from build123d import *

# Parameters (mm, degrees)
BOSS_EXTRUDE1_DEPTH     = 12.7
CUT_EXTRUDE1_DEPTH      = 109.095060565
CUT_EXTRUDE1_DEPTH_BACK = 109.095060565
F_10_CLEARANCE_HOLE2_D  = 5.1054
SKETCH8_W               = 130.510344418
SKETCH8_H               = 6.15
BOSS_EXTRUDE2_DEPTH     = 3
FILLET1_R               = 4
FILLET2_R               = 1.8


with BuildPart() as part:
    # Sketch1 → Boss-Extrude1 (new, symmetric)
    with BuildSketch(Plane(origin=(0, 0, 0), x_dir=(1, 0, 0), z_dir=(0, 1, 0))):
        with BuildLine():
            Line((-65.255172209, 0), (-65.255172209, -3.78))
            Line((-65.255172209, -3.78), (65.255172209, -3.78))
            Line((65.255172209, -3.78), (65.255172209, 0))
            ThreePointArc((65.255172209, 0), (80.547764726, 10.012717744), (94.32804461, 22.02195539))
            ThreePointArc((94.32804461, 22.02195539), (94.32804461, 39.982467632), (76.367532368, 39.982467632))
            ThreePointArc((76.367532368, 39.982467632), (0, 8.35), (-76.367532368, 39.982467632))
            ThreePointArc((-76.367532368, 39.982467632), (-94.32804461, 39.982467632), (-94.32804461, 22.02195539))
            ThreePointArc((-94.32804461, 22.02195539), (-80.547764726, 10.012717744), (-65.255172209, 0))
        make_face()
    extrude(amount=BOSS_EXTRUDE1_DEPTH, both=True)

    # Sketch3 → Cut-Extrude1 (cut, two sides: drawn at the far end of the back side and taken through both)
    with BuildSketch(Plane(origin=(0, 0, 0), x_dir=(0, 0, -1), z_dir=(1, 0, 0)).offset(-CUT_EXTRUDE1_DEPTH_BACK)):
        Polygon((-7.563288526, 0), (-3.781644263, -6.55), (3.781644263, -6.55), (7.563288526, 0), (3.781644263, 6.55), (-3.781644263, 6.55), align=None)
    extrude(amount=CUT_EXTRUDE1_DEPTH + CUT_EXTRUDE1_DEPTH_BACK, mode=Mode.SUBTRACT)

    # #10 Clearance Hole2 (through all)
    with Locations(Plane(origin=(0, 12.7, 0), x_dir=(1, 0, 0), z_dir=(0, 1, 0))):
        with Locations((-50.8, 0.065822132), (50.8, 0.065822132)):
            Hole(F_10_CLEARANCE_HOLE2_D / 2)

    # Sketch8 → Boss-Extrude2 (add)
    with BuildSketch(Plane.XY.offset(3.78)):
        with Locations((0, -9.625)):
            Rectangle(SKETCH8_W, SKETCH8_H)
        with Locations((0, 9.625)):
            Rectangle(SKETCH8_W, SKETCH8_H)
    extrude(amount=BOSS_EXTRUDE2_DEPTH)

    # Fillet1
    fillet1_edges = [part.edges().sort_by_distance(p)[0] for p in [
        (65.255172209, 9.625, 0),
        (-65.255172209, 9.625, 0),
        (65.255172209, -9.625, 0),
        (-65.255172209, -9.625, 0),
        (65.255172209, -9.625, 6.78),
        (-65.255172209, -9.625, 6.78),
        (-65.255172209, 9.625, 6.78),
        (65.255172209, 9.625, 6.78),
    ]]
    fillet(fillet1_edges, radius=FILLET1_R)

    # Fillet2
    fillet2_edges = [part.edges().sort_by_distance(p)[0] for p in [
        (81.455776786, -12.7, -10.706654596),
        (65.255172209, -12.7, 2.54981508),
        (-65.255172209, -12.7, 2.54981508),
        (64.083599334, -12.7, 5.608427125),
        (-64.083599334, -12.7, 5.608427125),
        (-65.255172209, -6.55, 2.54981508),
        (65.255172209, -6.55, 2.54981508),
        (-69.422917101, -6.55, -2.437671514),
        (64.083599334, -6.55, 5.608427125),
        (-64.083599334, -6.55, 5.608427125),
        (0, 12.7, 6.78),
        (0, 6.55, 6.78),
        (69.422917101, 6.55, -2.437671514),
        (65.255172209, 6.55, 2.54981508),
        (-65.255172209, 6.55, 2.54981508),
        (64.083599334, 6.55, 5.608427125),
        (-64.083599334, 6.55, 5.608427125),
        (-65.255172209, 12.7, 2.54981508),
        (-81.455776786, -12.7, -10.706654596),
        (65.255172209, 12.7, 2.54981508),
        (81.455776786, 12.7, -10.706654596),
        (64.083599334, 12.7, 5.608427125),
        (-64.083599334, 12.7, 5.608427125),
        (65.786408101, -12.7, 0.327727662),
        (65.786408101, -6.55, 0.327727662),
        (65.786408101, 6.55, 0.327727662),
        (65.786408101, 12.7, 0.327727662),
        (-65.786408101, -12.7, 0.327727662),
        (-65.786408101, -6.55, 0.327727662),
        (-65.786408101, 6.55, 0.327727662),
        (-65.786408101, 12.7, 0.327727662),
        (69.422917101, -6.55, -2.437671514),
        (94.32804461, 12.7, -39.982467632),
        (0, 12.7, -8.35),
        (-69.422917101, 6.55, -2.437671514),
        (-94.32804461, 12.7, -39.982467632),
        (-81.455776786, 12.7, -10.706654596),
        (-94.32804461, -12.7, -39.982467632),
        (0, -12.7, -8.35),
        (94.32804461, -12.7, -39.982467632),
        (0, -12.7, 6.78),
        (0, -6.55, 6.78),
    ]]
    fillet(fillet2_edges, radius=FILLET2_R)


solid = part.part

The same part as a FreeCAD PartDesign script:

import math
import FreeCAD as App
import Part
import Sketcher
Q = App.Units.Quantity


def edges_at(feature, points):
    """Names of the edges that pass closest to the given points."""
    edges = feature.Shape.Edges
    near = lambda p: min(range(len(edges)), key=lambda i: edges[i].distToShape(Part.Vertex(*p))[0])
    return sorted({f"Edge{near(p) + 1}" for p in points})

doc = App.newDocument("Part")
body = doc.addObject("PartDesign::Body", "Body")

# Sketch on XZ plane
sketch1 = body.newObject("Sketcher::SketchObject", "Sketch")
sketch1.AttachmentSupport = (doc.getObject("XZ_Plane"), [""])
sketch1.MapMode = "FlatFace"
sketch1.addGeometry([
    Part.LineSegment(App.Vector(-65.3, 0, 0), App.Vector(-65.3, 3.8, 0)),  # 0
    Part.LineSegment(App.Vector(-65.3, 3.8, 0), App.Vector(65.3, 3.8, 0)),  # 1
    Part.LineSegment(App.Vector(65.3, 3.8, 0), App.Vector(65.3, 0, 0)),  # 2
    Part.ArcOfCircle(Part.Circle(App.Vector(0, -116.4, 0), App.Vector(0, 0, 1), 133.4), math.radians(45), math.radians(60.71)),  # 3
    Part.ArcOfCircle(Part.Circle(App.Vector(85.3, -31, 0), App.Vector(0, 0, 1), 12.7), math.radians(-135), math.radians(45)),  # 4
    Part.ArcOfCircle(Part.Circle(App.Vector(0, -116.3, 0), App.Vector(0, 0, 1), 108), math.radians(45), math.radians(135)),  # 5
    Part.ArcOfCircle(Part.Circle(App.Vector(-85.3, -31, 0), App.Vector(0, 0, 1), 12.7), math.radians(135), math.radians(315)),  # 6
    Part.ArcOfCircle(Part.Circle(App.Vector(0, -116.4, 0), App.Vector(0, 0, 1), 133.4), math.radians(119.29), math.radians(135)),  # 7
], False)
sketch1.addConstraint([
    Sketcher.Constraint("Coincident", 0, 2, 1, 1),
    Sketcher.Constraint("Coincident", 1, 2, 2, 1),
    Sketcher.Constraint("Coincident", 2, 2, 3, 2),
    Sketcher.Constraint("Tangent", 3, 1, 4, 2),
    Sketcher.Constraint("Tangent", 4, 1, 5, 1),
    Sketcher.Constraint("Tangent", 5, 2, 6, 2),
    Sketcher.Constraint("Tangent", 6, 1, 7, 2),
    Sketcher.Constraint("Coincident", 7, 1, 0, 1),
    Sketcher.Constraint("Vertical", 0),
    Sketcher.Constraint("Horizontal", 1),
    Sketcher.Constraint("Vertical", 2),
    Sketcher.Constraint("Coincident", 5, 3, 3, 3),
    Sketcher.Constraint("Coincident", 7, 3, 3, 3),
    Sketcher.Constraint("Equal", 4, 6),
    Sketcher.Constraint("Symmetric", 2, 2, 7, 1, -1, 1),
    Sketcher.Constraint("Symmetric", 4, 3, 6, 3, -2),
    Sketcher.Constraint("Radius", 5, 108.0),
    Sketcher.Constraint("Radius", 3, 133.4),
    Sketcher.Constraint("DistanceY", 0, 1, 0, 2, 3.78),
    Sketcher.Constraint("DistanceY", 3, 3, -1, 1, 116.35),
    Sketcher.Constraint("DistanceX", -1, 1, 4, 3, 85.347788),
])
pad1 = body.newObject("PartDesign::Pad", "Pad")
pad1.Profile = sketch1
pad1.Length = 25.4
pad1.Midplane = True

# Sketch on YZ plane
sketch2 = body.newObject("Sketcher::SketchObject", "Sketch001")
sketch2.AttachmentSupport = (doc.getObject("YZ_Plane"), [""])
sketch2.MapMode = "FlatFace"
sketch2.addGeometry([
    Part.LineSegment(App.Vector(0, 8, 0), App.Vector(-7, 4, 0)),  # 0
    Part.LineSegment(App.Vector(-7, 4, 0), App.Vector(-7, -4, 0)),  # 1
    Part.LineSegment(App.Vector(-7, -4, 0), App.Vector(0, -8, 0)),  # 2
    Part.LineSegment(App.Vector(0, -8, 0), App.Vector(7, -4, 0)),  # 3
    Part.LineSegment(App.Vector(7, -4, 0), App.Vector(7, 4, 0)),  # 4
    Part.LineSegment(App.Vector(7, 4, 0), App.Vector(0, 8, 0)),  # 5
], False)
sketch2.addConstraint([
    Sketcher.Constraint("Coincident", 0, 2, 1, 1),
    Sketcher.Constraint("Coincident", 1, 2, 2, 1),
    Sketcher.Constraint("Coincident", 2, 2, 3, 1),
    Sketcher.Constraint("Coincident", 3, 2, 4, 1),
    Sketcher.Constraint("Coincident", 4, 2, 5, 1),
    Sketcher.Constraint("Coincident", 5, 2, 0, 1),
    Sketcher.Constraint("Vertical", 1),
    Sketcher.Constraint("Vertical", 4),
    Sketcher.Constraint("Symmetric", 0, 2, 3, 2, -1, 1),
    Sketcher.Constraint("Symmetric", 2, 2, 5, 2, -1, 1),
    Sketcher.Constraint("PointOnObject", 2, 2, -2),
    Sketcher.Constraint("Parallel", 2, 5),
    Sketcher.Constraint("Horizontal", 1, 2, 3, 2),
    Sketcher.Constraint("Angle", 0, Q("-150 deg")),
    Sketcher.Constraint("DistanceX", 1, 2, 3, 2, 13.1),
    Sketcher.Constraint("DistanceY", 1, 2, 1, 1, 7.563289),
])
pocket1 = body.newObject("PartDesign::Pocket", "Pocket")
pocket1.Profile = sketch2
pocket1.Type = "ThroughAll"
pocket1.Midplane = True

# Sketch on XZ plane
sketch3 = body.newObject("Sketcher::SketchObject", "Sketch002")
sketch3.AttachmentSupport = (doc.getObject("XZ_Plane"), [""])
sketch3.MapMode = "FlatFace"
sketch3.AttachmentOffset = App.Placement(App.Vector(0, 0, -12.7), App.Rotation())
sketch3.addGeometry([
    Part.Circle(App.Vector(-50.8, -0.1, 0), App.Vector(0, 0, 1), 2.6),
    Part.Circle(App.Vector(50.8, -0.1, 0), App.Vector(0, 0, 1), 2.6),
], False)
sketch3.addConstraint([
    Sketcher.Constraint("Equal", 0, 1),
    Sketcher.Constraint("Symmetric", 0, 3, 1, 3, -2),
    Sketcher.Constraint("Diameter", 0, 5.1054),
    Sketcher.Constraint("DistanceX", 0, 3, -1, 1, 50.8),
    Sketcher.Constraint("DistanceY", 0, 3, -1, 1, 0.065822),
])
doc.recompute()
hole = body.newObject("PartDesign::Hole", "Hole")
hole.Profile = sketch3
hole.ThreadType = "None"
hole.Diameter = 5.1054
hole.DepthType = "ThroughAll"
hole.Reversed = True

# Sketch on XY plane
sketch4 = body.newObject("Sketcher::SketchObject", "Sketch003")
sketch4.AttachmentSupport = (doc.getObject("XY_Plane"), [""])
sketch4.MapMode = "FlatFace"
sketch4.AttachmentOffset = App.Placement(App.Vector(0, 0, 3.78), App.Rotation())
sketch4.addGeometry([
    Part.LineSegment(App.Vector(-65, -7, 0), App.Vector(-65, -13, 0)),  # 0
    Part.LineSegment(App.Vector(-65, -13, 0), App.Vector(65, -13, 0)),  # 1
    Part.LineSegment(App.Vector(65, -13, 0), App.Vector(65, -7, 0)),  # 2
    Part.LineSegment(App.Vector(65, -7, 0), App.Vector(-65, -7, 0)),  # 3
    Part.LineSegment(App.Vector(-65, 13, 0), App.Vector(-65, 7, 0)),  # 4
    Part.LineSegment(App.Vector(-65, 7, 0), App.Vector(65, 7, 0)),  # 5
    Part.LineSegment(App.Vector(65, 7, 0), App.Vector(65, 13, 0)),  # 6
    Part.LineSegment(App.Vector(65, 13, 0), App.Vector(-65, 13, 0)),  # 7
], False)
sketch4.addConstraint([
    Sketcher.Constraint("Coincident", 0, 2, 1, 1),
    Sketcher.Constraint("Coincident", 1, 2, 2, 1),
    Sketcher.Constraint("Coincident", 2, 2, 3, 1),
    Sketcher.Constraint("Coincident", 3, 2, 0, 1),
    Sketcher.Constraint("Coincident", 4, 2, 5, 1),
    Sketcher.Constraint("Coincident", 5, 2, 6, 1),
    Sketcher.Constraint("Coincident", 6, 2, 7, 1),
    Sketcher.Constraint("Coincident", 7, 2, 4, 1),
    Sketcher.Constraint("Vertical", 0),
    Sketcher.Constraint("Horizontal", 1),
    Sketcher.Constraint("Vertical", 2),
    Sketcher.Constraint("Horizontal", 3),
    Sketcher.Constraint("Vertical", 4),
    Sketcher.Constraint("Horizontal", 5),
    Sketcher.Constraint("Vertical", 6),
    Sketcher.Constraint("Horizontal", 7),
    Sketcher.Constraint("Symmetric", 2, 2, 4, 2, -1, 1),
    Sketcher.Constraint("Symmetric", 0, 2, 6, 2, -1, 1),
    Sketcher.Constraint("Vertical", 3, 2, 4, 2),
    Sketcher.Constraint("DistanceY", 0, 2, 0, 1, 6.15),
    Sketcher.Constraint("DistanceY", 0, 2, -1, 1, 12.7),
    Sketcher.Constraint("DistanceX", 1, 1, 1, 2, 130.510344),
])
pad2 = body.newObject("PartDesign::Pad", "Pad001")
pad2.Profile = sketch4
pad2.Length = 3
doc.recompute()

fillet = body.newObject("PartDesign::Fillet", "Fillet")
fillet.Base = (pad2, edges_at(pad2, [
    (65.255, 9.625, 0),
    (-65.255, 9.625, 0),
    (65.255, -9.625, 0),
    (-65.255, -9.625, 0),
    (65.255, -9.625, 6.78),
    (-65.255, -9.625, 6.78),
    (-65.255, 9.625, 6.78),
    (65.255, 9.625, 6.78),
]))
fillet.Radius = 4
doc.recompute()

fillet2 = body.newObject("PartDesign::Fillet", "Fillet001")
fillet2.Base = (fillet, edges_at(fillet, [
    (81.456, -12.7, -10.707),
    (65.255, -12.7, 2.55),
    (-65.255, -12.7, 2.55),
    (64.084, -12.7, 5.608),
    (-64.084, -12.7, 5.608),
    (-65.255, -6.55, 2.55),
    (65.255, -6.55, 2.55),
    (-69.423, -6.55, -2.438),
    (64.084, -6.55, 5.608),
    (-64.084, -6.55, 5.608),
    (0, 12.7, 6.78),
    (0, 6.55, 6.78),
    (69.423, 6.55, -2.438),
    (65.255, 6.55, 2.55),
    (-65.255, 6.55, 2.55),
    (64.084, 6.55, 5.608),
    (-64.084, 6.55, 5.608),
    (-65.255, 12.7, 2.55),
    (-81.456, -12.7, -10.707),
    (65.255, 12.7, 2.55),
    (81.456, 12.7, -10.707),
    (64.084, 12.7, 5.608),
    (-64.084, 12.7, 5.608),
    (65.786, -12.7, 0.328),
    (65.786, -6.55, 0.328),
    (65.786, 6.55, 0.328),
    (65.786, 12.7, 0.328),
    (-65.786, -12.7, 0.328),
    (-65.786, -6.55, 0.328),
    (-65.786, 6.55, 0.328),
    (-65.786, 12.7, 0.328),
    (69.423, -6.55, -2.438),
    (94.328, 12.7, -39.982),
    (0, 12.7, -8.35),
    (-69.423, 6.55, -2.438),
    (-94.328, 12.7, -39.982),
    (-81.456, 12.7, -10.707),
    (-94.328, -12.7, -39.982),
    (0, -12.7, -8.35),
    (94.328, -12.7, -39.982),
    (0, -12.7, 6.78),
    (0, -6.55, 6.78),
]))
fillet2.Radius = 1.8

doc.recompute()
